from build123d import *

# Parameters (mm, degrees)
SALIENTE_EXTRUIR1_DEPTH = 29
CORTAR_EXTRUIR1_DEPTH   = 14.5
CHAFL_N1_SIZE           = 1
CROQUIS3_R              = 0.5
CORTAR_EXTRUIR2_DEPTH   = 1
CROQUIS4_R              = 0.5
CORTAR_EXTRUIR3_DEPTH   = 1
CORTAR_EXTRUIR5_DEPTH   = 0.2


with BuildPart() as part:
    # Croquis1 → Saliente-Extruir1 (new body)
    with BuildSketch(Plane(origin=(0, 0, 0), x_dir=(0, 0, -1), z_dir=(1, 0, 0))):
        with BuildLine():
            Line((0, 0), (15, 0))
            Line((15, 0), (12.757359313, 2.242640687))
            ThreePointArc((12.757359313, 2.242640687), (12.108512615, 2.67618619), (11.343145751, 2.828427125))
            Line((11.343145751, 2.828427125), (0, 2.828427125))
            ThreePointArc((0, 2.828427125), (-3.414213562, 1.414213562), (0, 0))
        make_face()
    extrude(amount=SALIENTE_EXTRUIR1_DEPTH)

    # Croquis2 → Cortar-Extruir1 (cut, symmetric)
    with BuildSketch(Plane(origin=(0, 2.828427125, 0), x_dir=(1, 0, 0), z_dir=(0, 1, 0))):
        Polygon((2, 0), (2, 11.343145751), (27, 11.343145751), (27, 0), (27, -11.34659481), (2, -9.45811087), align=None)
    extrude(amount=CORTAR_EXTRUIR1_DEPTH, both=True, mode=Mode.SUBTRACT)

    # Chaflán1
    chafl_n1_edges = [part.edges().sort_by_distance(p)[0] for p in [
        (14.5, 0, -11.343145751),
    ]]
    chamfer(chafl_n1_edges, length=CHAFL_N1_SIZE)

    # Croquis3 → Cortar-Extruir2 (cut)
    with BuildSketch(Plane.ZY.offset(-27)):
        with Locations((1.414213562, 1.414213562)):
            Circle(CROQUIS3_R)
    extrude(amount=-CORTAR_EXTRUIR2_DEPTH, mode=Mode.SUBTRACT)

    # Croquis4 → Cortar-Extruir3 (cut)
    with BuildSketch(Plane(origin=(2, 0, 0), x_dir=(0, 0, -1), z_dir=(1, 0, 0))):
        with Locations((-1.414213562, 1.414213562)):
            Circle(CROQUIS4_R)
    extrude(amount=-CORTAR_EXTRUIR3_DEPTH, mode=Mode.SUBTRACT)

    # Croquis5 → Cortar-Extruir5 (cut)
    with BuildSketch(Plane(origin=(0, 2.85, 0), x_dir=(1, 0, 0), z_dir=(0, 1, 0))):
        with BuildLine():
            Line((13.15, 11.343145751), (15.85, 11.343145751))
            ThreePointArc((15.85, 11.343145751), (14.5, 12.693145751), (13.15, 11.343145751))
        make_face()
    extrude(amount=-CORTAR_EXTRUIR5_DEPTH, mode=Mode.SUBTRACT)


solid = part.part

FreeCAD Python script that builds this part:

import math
import FreeCAD as App
import Part
import Sketcher
Q = App.Units.Quantity


def edges_at(feature, points):
    """Names of the edges that pass closest to the given points."""
    edges = feature.Shape.Edges
    near = lambda p: min(range(len(edges)), key=lambda i: edges[i].distToShape(Part.Vertex(*p))[0])
    return sorted({f"Edge{near(p) + 1}" for p in points})

doc = App.newDocument("Part")
body = doc.addObject("PartDesign::Body", "Body")

# Sketch on YZ plane
sketch1 = body.newObject("Sketcher::SketchObject", "Sketch")
sketch1.AttachmentSupport = (doc.getObject("YZ_Plane"), [""])
sketch1.MapMode = "FlatFace"
sketch1.addGeometry([
    Part.LineSegment(App.Vector(0, 0, 0), App.Vector(0, -15, 0)),  # 0
    Part.LineSegment(App.Vector(0, -15, 0), App.Vector(2.2, -12.8, 0)),  # 1
    Part.ArcOfCircle(Part.Circle(App.Vector(0.8, -11.3, 0), App.Vector(0, 0, 1), 2), math.radians(-45), math.radians(0)),  # 2
    Part.LineSegment(App.Vector(2.8, -11.3, 0), App.Vector(2.8, 0, 0)),  # 3
    Part.ArcOfCircle(Part.Circle(App.Vector(1.4, 1.4, 0), App.Vector(0, 0, 1), 2), math.radians(-45), math.radians(225)),  # 4
], False)
sketch1.addConstraint([
    Sketcher.Constraint("Coincident", 0, 2, 1, 1),
    Sketcher.Constraint("Tangent", 1, 2, 2, 1),
    Sketcher.Constraint("Tangent", 2, 2, 3, 1),
    Sketcher.Constraint("Coincident", 3, 2, 4, 1),
    Sketcher.Constraint("Coincident", 4, 2, 0, 1),
    Sketcher.Constraint("Vertical", 0),
    Sketcher.Constraint("Vertical", 3),
    Sketcher.Constraint("Coincident", 4, 2, -1, 1),
    Sketcher.Constraint("Equal", 2, 4),
    Sketcher.Constraint("PointOnObject", 3, 2, -1),
    Sketcher.Constraint("Radius", 2, 2.0),
    Sketcher.Constraint("DistanceY", 0, 2, 0, 1, 15.0),
    Sketcher.Constraint("Angle", 1, Q("45 deg")),
    Sketcher.Constraint("DistanceY", 3, 1, 3, 2, 11.343146),
])
pad1 = body.newObject("PartDesign::Pad", "Pad")
pad1.Profile = sketch1
pad1.Length = 29

# Sketch on XZ plane
sketch2 = body.newObject("Sketcher::SketchObject", "Sketch001")
sketch2.AttachmentSupport = (doc.getObject("XZ_Plane"), [""])
sketch2.MapMode = "FlatFace"
sketch2.AttachmentOffset = App.Placement(App.Vector(0, 0, -2.828427), App.Rotation())
sketch2.addGeometry([
    Part.LineSegment(App.Vector(2, -11, 0), App.Vector(2, 9, 0)),
    Part.LineSegment(App.Vector(2, 9, 0), App.Vector(27, 11, 0)),
    Part.LineSegment(App.Vector(27, 11, 0), App.Vector(27, -11, 0)),
    Part.LineSegment(App.Vector(27, -11, 0), App.Vector(2, -11, 0)),
], False)
sketch2.addConstraint([
    Sketcher.Constraint("Coincident", 0, 2, 1, 1),
    Sketcher.Constraint("Coincident", 1, 2, 2, 1),
    Sketcher.Constraint("Coincident", 2, 2, 3, 1),
    Sketcher.Constraint("Coincident", 3, 2, 0, 1),
    Sketcher.Constraint("Vertical", 0),
    Sketcher.Constraint("Vertical", 2),
    Sketcher.Constraint("Horizontal", 3),
    Sketcher.Constraint("DistanceX", 3, 2, 3, 1, 25.0),
    Sketcher.Constraint("DistanceX", -1, 1, 0, 2, 2.0),
    Sketcher.Constraint("DistanceY", 2, 2, 2, 1, 22.689741),
    Sketcher.Constraint("DistanceY", 0, 1, 0, 2, 20.801257),
    Sketcher.Constraint("DistanceY", -1, 1, 0, 2, 9.458111),
])
pocket1 = body.newObject("PartDesign::Pocket", "Pocket")
pocket1.Profile = sketch2
pocket1.Length = 29
pocket1.Midplane = True
doc.recompute()

chamfer = body.newObject("PartDesign::Chamfer", "Chamfer")
chamfer.Base = (pocket1, edges_at(pocket1, [(14.5, 0, -11.343)]))
chamfer.Size = 1

# Sketch on YZ plane
sketch3 = body.newObject("Sketcher::SketchObject", "Sketch002")
sketch3.AttachmentSupport = (doc.getObject("YZ_Plane"), [""])
sketch3.MapMode = "FlatFace"
sketch3.AttachmentOffset = App.Placement(App.Vector(0, 0, 27), App.Rotation())
sketch3.addGeometry(Part.Circle(App.Vector(1.4, 1.4, 0), App.Vector(0, 0, 1), 0.5), False)
sketch3.addConstraint([
    Sketcher.Constraint("Diameter", 0, 1.0),
    Sketcher.Constraint("DistanceX", -1, 1, 0, 3, 1.414214),
    Sketcher.Constraint("DistanceY", -1, 1, 0, 3, 1.414214),
])
pocket2 = body.newObject("PartDesign::Pocket", "Pocket001")
pocket2.Profile = sketch3
pocket2.Length = 1
pocket2.Reversed = True

# Sketch on YZ plane
sketch4 = body.newObject("Sketcher::SketchObject", "Sketch003")
sketch4.AttachmentSupport = (doc.getObject("YZ_Plane"), [""])
sketch4.MapMode = "FlatFace"
sketch4.AttachmentOffset = App.Placement(App.Vector(0, 0, 2), App.Rotation())
sketch4.addGeometry(Part.Circle(App.Vector(1.4, 1.4, 0), App.Vector(0, 0, 1), 0.5), False)
sketch4.addConstraint([
    Sketcher.Constraint("Diameter", 0, 1.0),
    Sketcher.Constraint("DistanceX", -1, 1, 0, 3, 1.414214),
    Sketcher.Constraint("DistanceY", -1, 1, 0, 3, 1.414214),
])
pocket3 = body.newObject("PartDesign::Pocket", "Pocket002")
pocket3.Profile = sketch4
pocket3.Length = 1

# Sketch on XZ plane
sketch5 = body.newObject("Sketcher::SketchObject", "Sketch004")
sketch5.AttachmentSupport = (doc.getObject("XZ_Plane"), [""])
sketch5.MapMode = "FlatFace"
sketch5.AttachmentOffset = App.Placement(App.Vector(0, 0, -2.85), App.Rotation())
sketch5.addGeometry([
    Part.LineSegment(App.Vector(13.2, -11.3, 0), App.Vector(15.8, -11.3, 0)),
    Part.ArcOfCircle(Part.Circle(App.Vector(14.5, -11.3, 0), App.Vector(0, 0, 1), 1.4), math.radians(180), math.radians(360)),
], False)
sketch5.addConstraint([
    Sketcher.Constraint("Coincident", 0, 1, 1, 1),
    Sketcher.Constraint("Coincident", 1, 2, 0, 2),
    Sketcher.Constraint("Horizontal", 0),
    Sketcher.Constraint("Horizontal", 1, 3, 0, 1),
    Sketcher.Constraint("Radius", 1, 1.35),
    Sketcher.Constraint("DistanceX", -1, 1, 1, 3, 14.5),
    Sketcher.Constraint("DistanceY", 1, 3, -1, 1, 11.343146),
])
pocket4 = body.newObject("PartDesign::Pocket", "Pocket003")
pocket4.Profile = sketch5
pocket4.Length = 0.2
pocket4.Reversed = True

doc.recompute()
